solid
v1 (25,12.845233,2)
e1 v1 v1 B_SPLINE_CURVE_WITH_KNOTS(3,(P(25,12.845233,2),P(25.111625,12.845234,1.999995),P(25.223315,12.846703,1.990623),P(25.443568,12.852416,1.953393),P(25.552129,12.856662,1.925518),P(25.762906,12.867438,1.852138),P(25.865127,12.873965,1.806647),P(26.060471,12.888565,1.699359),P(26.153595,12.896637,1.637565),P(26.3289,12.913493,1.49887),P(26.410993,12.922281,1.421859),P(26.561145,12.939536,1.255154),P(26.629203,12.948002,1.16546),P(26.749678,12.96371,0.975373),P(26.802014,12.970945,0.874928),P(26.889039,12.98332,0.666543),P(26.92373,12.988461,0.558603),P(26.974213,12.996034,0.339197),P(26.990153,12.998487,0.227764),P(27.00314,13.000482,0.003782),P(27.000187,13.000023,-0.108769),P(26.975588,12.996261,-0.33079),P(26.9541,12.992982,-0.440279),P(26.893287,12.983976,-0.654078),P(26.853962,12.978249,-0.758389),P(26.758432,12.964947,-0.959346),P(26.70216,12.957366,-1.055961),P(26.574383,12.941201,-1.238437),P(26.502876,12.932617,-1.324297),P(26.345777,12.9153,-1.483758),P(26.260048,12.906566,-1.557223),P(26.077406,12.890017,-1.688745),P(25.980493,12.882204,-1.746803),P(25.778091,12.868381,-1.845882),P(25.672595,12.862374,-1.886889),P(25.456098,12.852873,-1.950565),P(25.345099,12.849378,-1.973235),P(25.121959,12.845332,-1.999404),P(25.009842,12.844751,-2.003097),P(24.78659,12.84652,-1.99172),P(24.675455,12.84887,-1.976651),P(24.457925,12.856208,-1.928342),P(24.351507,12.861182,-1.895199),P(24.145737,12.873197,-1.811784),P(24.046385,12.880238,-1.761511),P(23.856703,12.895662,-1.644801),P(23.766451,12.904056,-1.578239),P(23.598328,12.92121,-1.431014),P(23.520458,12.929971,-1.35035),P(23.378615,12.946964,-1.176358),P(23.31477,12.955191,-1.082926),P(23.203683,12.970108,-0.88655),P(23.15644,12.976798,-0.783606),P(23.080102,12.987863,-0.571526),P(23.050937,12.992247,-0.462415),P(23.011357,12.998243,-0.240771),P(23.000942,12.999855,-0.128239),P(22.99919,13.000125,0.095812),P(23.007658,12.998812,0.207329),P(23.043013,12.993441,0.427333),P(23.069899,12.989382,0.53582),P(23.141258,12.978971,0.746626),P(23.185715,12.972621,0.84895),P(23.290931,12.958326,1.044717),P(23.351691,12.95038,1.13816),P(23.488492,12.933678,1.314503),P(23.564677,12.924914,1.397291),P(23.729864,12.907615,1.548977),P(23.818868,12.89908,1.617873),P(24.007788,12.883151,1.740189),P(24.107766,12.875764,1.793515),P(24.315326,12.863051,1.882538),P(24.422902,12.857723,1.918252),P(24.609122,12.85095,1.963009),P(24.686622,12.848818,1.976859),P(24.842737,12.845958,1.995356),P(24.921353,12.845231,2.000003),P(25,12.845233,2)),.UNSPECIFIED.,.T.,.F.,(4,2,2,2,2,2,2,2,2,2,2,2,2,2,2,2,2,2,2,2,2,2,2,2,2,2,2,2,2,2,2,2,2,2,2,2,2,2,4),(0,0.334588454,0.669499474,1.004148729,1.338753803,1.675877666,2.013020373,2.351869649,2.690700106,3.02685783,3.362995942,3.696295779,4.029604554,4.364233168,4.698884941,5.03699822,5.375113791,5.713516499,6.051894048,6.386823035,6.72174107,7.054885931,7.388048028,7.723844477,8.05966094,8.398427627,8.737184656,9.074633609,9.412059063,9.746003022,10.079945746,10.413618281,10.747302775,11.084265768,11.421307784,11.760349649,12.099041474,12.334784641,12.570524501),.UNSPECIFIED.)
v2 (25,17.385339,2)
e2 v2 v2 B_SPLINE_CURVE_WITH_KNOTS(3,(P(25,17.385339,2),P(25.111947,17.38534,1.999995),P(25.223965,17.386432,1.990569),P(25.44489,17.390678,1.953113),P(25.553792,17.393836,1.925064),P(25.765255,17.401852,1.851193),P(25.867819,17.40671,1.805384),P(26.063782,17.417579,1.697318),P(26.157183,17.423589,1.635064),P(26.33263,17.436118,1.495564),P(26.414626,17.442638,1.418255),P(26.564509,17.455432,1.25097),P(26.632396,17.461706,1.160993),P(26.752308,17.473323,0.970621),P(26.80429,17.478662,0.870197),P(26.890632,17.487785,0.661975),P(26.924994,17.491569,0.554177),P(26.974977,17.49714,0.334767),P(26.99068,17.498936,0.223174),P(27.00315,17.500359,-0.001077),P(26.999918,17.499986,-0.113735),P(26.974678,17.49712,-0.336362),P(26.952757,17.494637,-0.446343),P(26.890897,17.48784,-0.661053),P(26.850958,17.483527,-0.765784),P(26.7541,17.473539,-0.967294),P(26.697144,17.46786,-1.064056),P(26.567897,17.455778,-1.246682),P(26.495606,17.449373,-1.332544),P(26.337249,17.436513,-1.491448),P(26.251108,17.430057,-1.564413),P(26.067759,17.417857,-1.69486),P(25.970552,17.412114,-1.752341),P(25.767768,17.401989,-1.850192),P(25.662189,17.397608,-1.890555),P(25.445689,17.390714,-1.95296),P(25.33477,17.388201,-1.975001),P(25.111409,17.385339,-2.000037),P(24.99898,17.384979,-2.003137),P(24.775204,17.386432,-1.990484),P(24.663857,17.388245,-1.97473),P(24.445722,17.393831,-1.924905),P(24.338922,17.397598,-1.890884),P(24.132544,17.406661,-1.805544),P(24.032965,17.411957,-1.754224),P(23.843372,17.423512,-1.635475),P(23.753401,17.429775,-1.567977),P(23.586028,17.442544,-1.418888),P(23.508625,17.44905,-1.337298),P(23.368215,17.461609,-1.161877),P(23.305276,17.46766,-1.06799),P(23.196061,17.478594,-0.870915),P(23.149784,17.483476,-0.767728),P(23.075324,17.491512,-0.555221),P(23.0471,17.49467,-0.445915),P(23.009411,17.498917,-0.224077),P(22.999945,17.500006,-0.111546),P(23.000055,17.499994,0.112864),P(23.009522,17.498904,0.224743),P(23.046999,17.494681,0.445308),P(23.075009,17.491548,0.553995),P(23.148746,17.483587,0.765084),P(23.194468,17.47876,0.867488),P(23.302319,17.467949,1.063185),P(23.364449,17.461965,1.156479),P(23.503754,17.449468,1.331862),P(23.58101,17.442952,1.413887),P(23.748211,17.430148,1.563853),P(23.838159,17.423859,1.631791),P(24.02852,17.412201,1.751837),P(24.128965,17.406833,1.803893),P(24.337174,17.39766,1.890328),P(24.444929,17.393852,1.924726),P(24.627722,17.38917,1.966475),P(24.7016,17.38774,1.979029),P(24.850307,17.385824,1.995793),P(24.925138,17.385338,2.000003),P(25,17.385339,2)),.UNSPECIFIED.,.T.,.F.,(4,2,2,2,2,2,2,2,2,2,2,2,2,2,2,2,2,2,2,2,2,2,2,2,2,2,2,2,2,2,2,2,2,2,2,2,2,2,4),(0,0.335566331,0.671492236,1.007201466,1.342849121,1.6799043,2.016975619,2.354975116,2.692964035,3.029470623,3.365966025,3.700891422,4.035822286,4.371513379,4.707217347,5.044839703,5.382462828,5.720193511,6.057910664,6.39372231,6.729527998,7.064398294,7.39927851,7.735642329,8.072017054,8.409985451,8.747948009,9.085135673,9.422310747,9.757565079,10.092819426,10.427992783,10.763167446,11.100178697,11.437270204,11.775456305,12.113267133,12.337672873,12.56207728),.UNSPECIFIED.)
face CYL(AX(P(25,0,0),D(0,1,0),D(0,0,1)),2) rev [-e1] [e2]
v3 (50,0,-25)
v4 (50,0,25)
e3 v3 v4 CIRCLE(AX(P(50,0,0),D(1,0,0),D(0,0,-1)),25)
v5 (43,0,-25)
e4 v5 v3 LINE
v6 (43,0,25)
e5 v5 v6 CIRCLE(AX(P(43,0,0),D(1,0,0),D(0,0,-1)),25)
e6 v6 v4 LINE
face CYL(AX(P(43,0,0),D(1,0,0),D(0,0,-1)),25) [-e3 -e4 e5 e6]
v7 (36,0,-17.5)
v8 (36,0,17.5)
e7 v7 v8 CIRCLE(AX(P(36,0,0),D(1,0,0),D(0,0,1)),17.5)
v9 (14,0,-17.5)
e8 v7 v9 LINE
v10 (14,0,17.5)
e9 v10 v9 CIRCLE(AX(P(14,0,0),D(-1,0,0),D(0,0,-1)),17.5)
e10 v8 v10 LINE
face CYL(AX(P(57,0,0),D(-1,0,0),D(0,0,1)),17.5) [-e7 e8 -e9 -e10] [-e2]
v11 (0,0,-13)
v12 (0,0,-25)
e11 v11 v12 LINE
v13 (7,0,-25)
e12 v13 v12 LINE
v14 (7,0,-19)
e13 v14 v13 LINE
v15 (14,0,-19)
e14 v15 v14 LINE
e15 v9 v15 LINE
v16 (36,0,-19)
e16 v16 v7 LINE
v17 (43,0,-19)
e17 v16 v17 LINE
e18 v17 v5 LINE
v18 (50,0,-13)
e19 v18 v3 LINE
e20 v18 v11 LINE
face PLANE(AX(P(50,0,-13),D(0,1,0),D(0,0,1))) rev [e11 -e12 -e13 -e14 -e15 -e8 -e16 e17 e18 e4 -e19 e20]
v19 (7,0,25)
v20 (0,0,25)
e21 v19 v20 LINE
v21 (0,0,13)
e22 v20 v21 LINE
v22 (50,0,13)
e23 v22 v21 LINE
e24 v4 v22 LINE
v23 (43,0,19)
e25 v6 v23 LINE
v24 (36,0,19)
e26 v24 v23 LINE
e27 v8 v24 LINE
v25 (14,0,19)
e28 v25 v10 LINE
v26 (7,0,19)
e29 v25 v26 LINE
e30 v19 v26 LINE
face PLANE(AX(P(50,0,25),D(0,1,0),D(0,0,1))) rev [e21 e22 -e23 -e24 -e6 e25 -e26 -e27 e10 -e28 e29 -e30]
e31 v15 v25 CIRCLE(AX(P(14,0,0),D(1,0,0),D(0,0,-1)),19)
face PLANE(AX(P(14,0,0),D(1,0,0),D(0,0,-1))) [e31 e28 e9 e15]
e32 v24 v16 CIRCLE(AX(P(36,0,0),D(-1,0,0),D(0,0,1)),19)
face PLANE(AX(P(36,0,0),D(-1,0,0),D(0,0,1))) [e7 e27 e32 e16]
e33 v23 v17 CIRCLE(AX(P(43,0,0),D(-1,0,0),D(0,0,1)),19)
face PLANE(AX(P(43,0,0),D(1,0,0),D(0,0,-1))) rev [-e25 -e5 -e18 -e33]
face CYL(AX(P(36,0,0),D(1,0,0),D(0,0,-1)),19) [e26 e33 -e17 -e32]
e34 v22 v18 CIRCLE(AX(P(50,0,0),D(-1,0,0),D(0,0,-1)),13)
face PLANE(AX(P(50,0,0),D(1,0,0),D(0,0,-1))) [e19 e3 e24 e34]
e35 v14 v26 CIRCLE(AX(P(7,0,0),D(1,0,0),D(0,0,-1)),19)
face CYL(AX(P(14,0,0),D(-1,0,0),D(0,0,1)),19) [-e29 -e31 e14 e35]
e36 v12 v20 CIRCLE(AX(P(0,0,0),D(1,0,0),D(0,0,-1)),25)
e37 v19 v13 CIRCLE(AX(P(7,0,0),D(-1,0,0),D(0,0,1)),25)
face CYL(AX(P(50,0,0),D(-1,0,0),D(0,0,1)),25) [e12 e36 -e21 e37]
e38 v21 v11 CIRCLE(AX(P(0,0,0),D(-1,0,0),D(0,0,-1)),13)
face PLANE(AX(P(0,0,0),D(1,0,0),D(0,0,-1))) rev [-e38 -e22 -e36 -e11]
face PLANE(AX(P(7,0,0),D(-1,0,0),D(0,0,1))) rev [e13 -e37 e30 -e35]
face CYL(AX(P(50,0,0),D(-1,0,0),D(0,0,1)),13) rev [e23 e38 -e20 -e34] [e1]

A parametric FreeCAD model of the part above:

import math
import FreeCAD as App
import Part
import Sketcher

V = App.Vector

doc = App.newDocument("Part")
body = doc.addObject("PartDesign::Body", "Body")

# Sketch on YZ plane
sketch1 = doc.addObject("Sketcher::SketchObject", "Sketch")
body.addObject(sketch1)
sketch1.AttachmentSupport = (doc.YZ_Plane, [""])
sketch1.MapMode = "FlatFace"
sketch1.addGeometry([
    Part.LineSegment(V(0, 25, 0), V(0, 13, 0)),
    Part.ArcOfCircle(Part.Circle(V(0, 0, 0), V(0, 0, 1), 13), math.radians(-90), math.radians(90)),
    Part.LineSegment(V(0, -13, 0), V(0, -25, 0)),
    Part.ArcOfCircle(Part.Circle(V(0, 0, 0), V(0, 0, 1), 25), math.radians(-90), math.radians(90)),
], False)
sketch1.addConstraint([
    Sketcher.Constraint("Coincident", 0, 2, 1, 2),
    Sketcher.Constraint("Coincident", 1, 1, 2, 1),
    Sketcher.Constraint("Coincident", 2, 2, 3, 1),
    Sketcher.Constraint("Coincident", 3, 2, 0, 1),
    Sketcher.Constraint("Vertical", 0),
    Sketcher.Constraint("Vertical", 2),
    Sketcher.Constraint("Coincident", 1, 3, -1, 1),
    Sketcher.Constraint("Coincident", 3, 3, -1, 1),
    Sketcher.Constraint("PointOnObject", 0, 2, -2),
    Sketcher.Constraint("PointOnObject", 1, 1, -2),
    Sketcher.Constraint("Radius", 1, 13.0),
    Sketcher.Constraint("Radius", 3, 25.0),
])
pad1 = doc.addObject("PartDesign::Pad", "Pad")
body.addObject(pad1)
pad1.Profile = sketch1
pad1.Length = 50

# Sketch on YZ plane
sketch2 = doc.addObject("Sketcher::SketchObject", "Sketch001")
body.addObject(sketch2)
sketch2.AttachmentSupport = (doc.YZ_Plane, [""])
sketch2.MapMode = "FlatFace"
sketch2.AttachmentOffset = App.Placement(V(0, 0, 7), App.Rotation())
sketch2.addGeometry([
    Part.ArcOfCircle(Part.Circle(V(0, 0, 0), V(0, 0, 1), 18), math.radians(-90), math.radians(90)),
    Part.LineSegment(V(0, 18, 0), V(0, 28, 0)),
    Part.ArcOfCircle(Part.Circle(V(0, 0, 0), V(0, 0, 1), 28), math.radians(-90), math.radians(90)),
    Part.LineSegment(V(0, -28, 0), V(0, -18, 0)),
], False)
sketch2.addConstraint([
    Sketcher.Constraint("Coincident", 0, 2, 1, 1),
    Sketcher.Constraint("Coincident", 1, 2, 2, 2),
    Sketcher.Constraint("Coincident", 2, 1, 3, 1),
    Sketcher.Constraint("Coincident", 3, 2, 0, 1),
    Sketcher.Constraint("Vertical", 1),
    Sketcher.Constraint("Vertical", 3),
    Sketcher.Constraint("Coincident", 0, 3, -1, 1),
    Sketcher.Constraint("Coincident", 2, 3, -1, 1),
    Sketcher.Constraint("PointOnObject", 0, 2, -2),
    Sketcher.Constraint("PointOnObject", 2, 1, -2),
    Sketcher.Constraint("Radius", 0, 17.5),
    Sketcher.Constraint("Radius", 2, 27.5),
])
pocket1 = doc.addObject("PartDesign::Pocket", "Pocket")
body.addObject(pocket1)
pocket1.Profile = sketch2
pocket1.Length = 50
pocket1.Reversed = True

# Sketch on YZ plane
sketch3 = doc.addObject("Sketcher::SketchObject", "Sketch002")
body.addObject(sketch3)
sketch3.AttachmentSupport = (doc.YZ_Plane, [""])
sketch3.MapMode = "FlatFace"
sketch3.AttachmentOffset = App.Placement(V(0, 0, 7), App.Rotation())
sketch3.addGeometry([
    Part.LineSegment(V(0, 19, 0), V(0, 17.5, 0)),
    Part.ArcOfCircle(Part.Circle(V(0, 0, 0), V(0, 0, 1), 17.5), math.radians(-90), math.radians(90)),
    Part.LineSegment(V(0, -17.5, 0), V(0, -19, 0)),
    Part.ArcOfCircle(Part.Circle(V(0, 0, 0), V(0, 0, 1), 19), math.radians(-90), math.radians(90)),
], False)
sketch3.addConstraint([
    Sketcher.Constraint("Coincident", 0, 2, 1, 2),
    Sketcher.Constraint("Coincident", 1, 1, 2, 1),
    Sketcher.Constraint("Coincident", 2, 2, 3, 1),
    Sketcher.Constraint("Coincident", 3, 2, 0, 1),
    Sketcher.Constraint("Vertical", 0),
    Sketcher.Constraint("Vertical", 2),
    Sketcher.Constraint("Coincident", 1, 3, -1, 1),
    Sketcher.Constraint("Coincident", 3, 3, -1, 1),
    Sketcher.Constraint("PointOnObject", 0, 2, -2),
    Sketcher.Constraint("PointOnObject", 1, 1, -2),
    Sketcher.Constraint("Radius", 3, 19.0),
    Sketcher.Constraint("Radius", 1, 17.5),
])
pad2 = doc.addObject("PartDesign::Pad", "Pad001")
body.addObject(pad2)
pad2.Profile = sketch3
pad2.Length = 7

# Sketch on YZ plane
sketch4 = doc.addObject("Sketcher::SketchObject", "Sketch003")
body.addObject(sketch4)
sketch4.AttachmentSupport = (doc.YZ_Plane, [""])
sketch4.MapMode = "FlatFace"
sketch4.AttachmentOffset = App.Placement(V(0, 0, 43), App.Rotation())
sketch4.addGeometry([
    Part.LineSegment(V(0, 25, 0), V(0, 18, 0)),
    Part.ArcOfCircle(Part.Circle(V(0, 0, 0), V(0, 0, 1), 18), math.radians(-90), math.radians(90)),
    Part.LineSegment(V(0, -18, 0), V(0, -25, 0)),
    Part.ArcOfCircle(Part.Circle(V(0, 0, 0), V(0, 0, 1), 25), math.radians(-90), math.radians(90)),
], False)
sketch4.addConstraint([
    Sketcher.Constraint("Coincident", 0, 2, 1, 2),
    Sketcher.Constraint("Coincident", 1, 1, 2, 1),
    Sketcher.Constraint("Coincident", 2, 2, 3, 1),
    Sketcher.Constraint("Coincident", 3, 2, 0, 1),
    Sketcher.Constraint("Vertical", 0),
    Sketcher.Constraint("Vertical", 2),
    Sketcher.Constraint("Coincident", 1, 3, -1, 1),
    Sketcher.Constraint("Coincident", 3, 3, -1, 1),
    Sketcher.Constraint("PointOnObject", 0, 2, -2),
    Sketcher.Constraint("PointOnObject", 1, 1, -2),
    Sketcher.Constraint("Radius", 3, 25.0),
    Sketcher.Constraint("Radius", 1, 17.5),
])
pad3 = doc.addObject("PartDesign::Pad", "Pad002")
body.addObject(pad3)
pad3.Profile = sketch4
pad3.Length = 7

# Sketch on YZ plane
sketch5 = doc.addObject("Sketcher::SketchObject", "Sketch004")
body.addObject(sketch5)
sketch5.AttachmentSupport = (doc.YZ_Plane, [""])
sketch5.MapMode = "FlatFace"
sketch5.AttachmentOffset = App.Placement(V(0, 0, 36), App.Rotation())
sketch5.addGeometry([
    Part.LineSegment(V(0, -19, 0), V(0, -17.5, 0)),
    Part.ArcOfCircle(Part.Circle(V(0, 0, 0), V(0, 0, 1), 17.5), math.radians(-90), math.radians(90)),
    Part.LineSegment(V(0, 17.5, 0), V(0, 19, 0)),
    Part.ArcOfCircle(Part.Circle(V(0, 0, 0), V(0, 0, 1), 19), math.radians(-90), math.radians(90)),
], False)
sketch5.addConstraint([
    Sketcher.Constraint("Coincident", 0, 2, 1, 1),
    Sketcher.Constraint("Coincident", 1, 2, 2, 1),
    Sketcher.Constraint("Coincident", 2, 2, 3, 2),
    Sketcher.Constraint("Coincident", 3, 1, 0, 1),
    Sketcher.Constraint("Vertical", 0),
    Sketcher.Constraint("Vertical", 2),
    Sketcher.Constraint("Coincident", 1, 3, -1, 1),
    Sketcher.Constraint("Coincident", 3, 3, -1, 1),
    Sketcher.Constraint("PointOnObject", 0, 2, -2),
    Sketcher.Constraint("PointOnObject", 1, 2, -2),
    Sketcher.Constraint("Radius", 3, 19.0),
    Sketcher.Constraint("Radius", 1, 17.5),
])
pad4 = doc.addObject("PartDesign::Pad", "Pad003")
body.addObject(pad4)
pad4.Profile = sketch5
pad4.Length = 7

# Sketch on XZ plane
sketch6 = doc.addObject("Sketcher::SketchObject", "Sketch005")
body.addObject(sketch6)
sketch6.AttachmentSupport = (doc.XZ_Plane, [""])
sketch6.MapMode = "FlatFace"
sketch6.AttachmentOffset = App.Placement(V(0, 0, -17.5), App.Rotation())
sketch6.addGeometry(Part.Circle(V(25, 0, 0), V(0, 0, 1), 2), False)
sketch6.addConstraint([
    Sketcher.Constraint("PointOnObject", 0, 3, -1),
    Sketcher.Constraint("Diameter", 0, 4.0),
    Sketcher.Constraint("DistanceX", -1, 1, 0, 3, 25.0),
])
pocket2 = doc.addObject("PartDesign::Pocket", "Pocket001")
body.addObject(pocket2)
pocket2.Profile = sketch6
pocket2.Type = "ThroughAll"
pocket2.Reversed = True

doc.recompute()
